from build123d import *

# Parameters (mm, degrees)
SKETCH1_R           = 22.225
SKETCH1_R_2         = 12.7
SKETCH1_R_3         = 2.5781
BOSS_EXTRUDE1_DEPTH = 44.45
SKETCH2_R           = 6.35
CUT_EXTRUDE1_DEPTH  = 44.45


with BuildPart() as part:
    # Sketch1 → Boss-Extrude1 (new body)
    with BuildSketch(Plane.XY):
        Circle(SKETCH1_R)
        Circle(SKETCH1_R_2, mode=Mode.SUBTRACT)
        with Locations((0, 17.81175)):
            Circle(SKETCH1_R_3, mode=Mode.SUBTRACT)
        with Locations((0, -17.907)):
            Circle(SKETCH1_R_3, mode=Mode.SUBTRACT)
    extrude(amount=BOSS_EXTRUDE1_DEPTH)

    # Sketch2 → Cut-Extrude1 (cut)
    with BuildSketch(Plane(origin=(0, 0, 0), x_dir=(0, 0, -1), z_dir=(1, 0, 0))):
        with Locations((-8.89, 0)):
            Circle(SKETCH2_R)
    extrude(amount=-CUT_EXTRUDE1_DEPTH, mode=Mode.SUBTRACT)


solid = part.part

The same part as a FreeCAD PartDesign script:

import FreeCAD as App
import Part
import Sketcher

V = App.Vector
Q = App.Units.Quantity

doc = App.newDocument("Part")
params = doc.addObject("Spreadsheet::Sheet", "Params")
for row, (alias, value) in enumerate([
    ("sketch1_diameter", "1 in"),
    ("sketch1_diameter2", "1.75 in"),
    ("sketch1_diameter3", "0.203 in"),
    ("pad1_length", "1.75 in"),
    ("sketch2_diameter", "0.5 in"),
    ("pocket1_length", "1.75 in"),
], start=1):
    params.set(f"A{row}", alias)
    params.set(f"B{row}", "=" + value)
    params.setAlias(f"B{row}", alias)

body = doc.addObject("PartDesign::Body", "Body")

# Sketch on XY plane
sketch1 = body.newObject("Sketcher::SketchObject", "Sketch")
sketch1.AttachmentSupport = (doc.getObject("XY_Plane"), [""])
sketch1.MapMode = "FlatFace"
sketch1.addGeometry([
    Part.Circle(V(0, 0, 0), V(0, 0, 1), 22.2),
    Part.Circle(V(0, -17.9, 0), V(0, 0, 1), 2.6),
    Part.Circle(V(0, 0, 0), V(0, 0, 1), 12.7),
    Part.Circle(V(0, 17.8, 0), V(0, 0, 1), 2.6),
], False)
sketch1.addConstraint([
    Sketcher.Constraint("Coincident", 0, 3, -1, 1),
    Sketcher.Constraint("Coincident", 2, 3, -1, 1),
    Sketcher.Constraint("Equal", 1, 3),
    Sketcher.Constraint("PointOnObject", 1, 3, -2),
    Sketcher.Constraint("PointOnObject", 3, 3, -2),
    Sketcher.Constraint("Diameter", 2, Q("1 in")),
    Sketcher.Constraint("Diameter", 0, Q("1.75 in")),
    Sketcher.Constraint("Diameter", 1, Q("0.203 in")),
    Sketcher.Constraint("DistanceY", 1, 3, -1, 1, Q("0.705 in")),
    Sketcher.Constraint("DistanceY", 1, 3, 3, 3, Q("1.40625 in")),
])
sketch1.setExpression("Constraints[5]", "Params.sketch1_diameter")
sketch1.setExpression("Constraints[6]", "Params.sketch1_diameter2")
sketch1.setExpression("Constraints[7]", "Params.sketch1_diameter3")
pad1 = body.newObject("PartDesign::Pad", "Pad")
pad1.Profile = sketch1
pad1.setExpression("Length", "Params.pad1_length")

# Sketch on YZ plane
sketch2 = body.newObject("Sketcher::SketchObject", "Sketch001")
sketch2.AttachmentSupport = (doc.getObject("YZ_Plane"), [""])
sketch2.MapMode = "FlatFace"
sketch2.addGeometry(Part.Circle(V(0, 9, 0), V(0, 0, 1), 6), False)
sketch2.addConstraint([
    Sketcher.Constraint("PointOnObject", 0, 3, -2),
    Sketcher.Constraint("Diameter", 0, Q("0.5 in")),
    Sketcher.Constraint("DistanceY", -1, 1, 0, 3, Q("0.35 in")),
])
sketch2.setExpression("Constraints[1]", "Params.sketch2_diameter")
pocket1 = body.newObject("PartDesign::Pocket", "Pocket")
pocket1.Profile = sketch2
pocket1.setExpression("Length", "Params.pocket1_length")

doc.recompute()
